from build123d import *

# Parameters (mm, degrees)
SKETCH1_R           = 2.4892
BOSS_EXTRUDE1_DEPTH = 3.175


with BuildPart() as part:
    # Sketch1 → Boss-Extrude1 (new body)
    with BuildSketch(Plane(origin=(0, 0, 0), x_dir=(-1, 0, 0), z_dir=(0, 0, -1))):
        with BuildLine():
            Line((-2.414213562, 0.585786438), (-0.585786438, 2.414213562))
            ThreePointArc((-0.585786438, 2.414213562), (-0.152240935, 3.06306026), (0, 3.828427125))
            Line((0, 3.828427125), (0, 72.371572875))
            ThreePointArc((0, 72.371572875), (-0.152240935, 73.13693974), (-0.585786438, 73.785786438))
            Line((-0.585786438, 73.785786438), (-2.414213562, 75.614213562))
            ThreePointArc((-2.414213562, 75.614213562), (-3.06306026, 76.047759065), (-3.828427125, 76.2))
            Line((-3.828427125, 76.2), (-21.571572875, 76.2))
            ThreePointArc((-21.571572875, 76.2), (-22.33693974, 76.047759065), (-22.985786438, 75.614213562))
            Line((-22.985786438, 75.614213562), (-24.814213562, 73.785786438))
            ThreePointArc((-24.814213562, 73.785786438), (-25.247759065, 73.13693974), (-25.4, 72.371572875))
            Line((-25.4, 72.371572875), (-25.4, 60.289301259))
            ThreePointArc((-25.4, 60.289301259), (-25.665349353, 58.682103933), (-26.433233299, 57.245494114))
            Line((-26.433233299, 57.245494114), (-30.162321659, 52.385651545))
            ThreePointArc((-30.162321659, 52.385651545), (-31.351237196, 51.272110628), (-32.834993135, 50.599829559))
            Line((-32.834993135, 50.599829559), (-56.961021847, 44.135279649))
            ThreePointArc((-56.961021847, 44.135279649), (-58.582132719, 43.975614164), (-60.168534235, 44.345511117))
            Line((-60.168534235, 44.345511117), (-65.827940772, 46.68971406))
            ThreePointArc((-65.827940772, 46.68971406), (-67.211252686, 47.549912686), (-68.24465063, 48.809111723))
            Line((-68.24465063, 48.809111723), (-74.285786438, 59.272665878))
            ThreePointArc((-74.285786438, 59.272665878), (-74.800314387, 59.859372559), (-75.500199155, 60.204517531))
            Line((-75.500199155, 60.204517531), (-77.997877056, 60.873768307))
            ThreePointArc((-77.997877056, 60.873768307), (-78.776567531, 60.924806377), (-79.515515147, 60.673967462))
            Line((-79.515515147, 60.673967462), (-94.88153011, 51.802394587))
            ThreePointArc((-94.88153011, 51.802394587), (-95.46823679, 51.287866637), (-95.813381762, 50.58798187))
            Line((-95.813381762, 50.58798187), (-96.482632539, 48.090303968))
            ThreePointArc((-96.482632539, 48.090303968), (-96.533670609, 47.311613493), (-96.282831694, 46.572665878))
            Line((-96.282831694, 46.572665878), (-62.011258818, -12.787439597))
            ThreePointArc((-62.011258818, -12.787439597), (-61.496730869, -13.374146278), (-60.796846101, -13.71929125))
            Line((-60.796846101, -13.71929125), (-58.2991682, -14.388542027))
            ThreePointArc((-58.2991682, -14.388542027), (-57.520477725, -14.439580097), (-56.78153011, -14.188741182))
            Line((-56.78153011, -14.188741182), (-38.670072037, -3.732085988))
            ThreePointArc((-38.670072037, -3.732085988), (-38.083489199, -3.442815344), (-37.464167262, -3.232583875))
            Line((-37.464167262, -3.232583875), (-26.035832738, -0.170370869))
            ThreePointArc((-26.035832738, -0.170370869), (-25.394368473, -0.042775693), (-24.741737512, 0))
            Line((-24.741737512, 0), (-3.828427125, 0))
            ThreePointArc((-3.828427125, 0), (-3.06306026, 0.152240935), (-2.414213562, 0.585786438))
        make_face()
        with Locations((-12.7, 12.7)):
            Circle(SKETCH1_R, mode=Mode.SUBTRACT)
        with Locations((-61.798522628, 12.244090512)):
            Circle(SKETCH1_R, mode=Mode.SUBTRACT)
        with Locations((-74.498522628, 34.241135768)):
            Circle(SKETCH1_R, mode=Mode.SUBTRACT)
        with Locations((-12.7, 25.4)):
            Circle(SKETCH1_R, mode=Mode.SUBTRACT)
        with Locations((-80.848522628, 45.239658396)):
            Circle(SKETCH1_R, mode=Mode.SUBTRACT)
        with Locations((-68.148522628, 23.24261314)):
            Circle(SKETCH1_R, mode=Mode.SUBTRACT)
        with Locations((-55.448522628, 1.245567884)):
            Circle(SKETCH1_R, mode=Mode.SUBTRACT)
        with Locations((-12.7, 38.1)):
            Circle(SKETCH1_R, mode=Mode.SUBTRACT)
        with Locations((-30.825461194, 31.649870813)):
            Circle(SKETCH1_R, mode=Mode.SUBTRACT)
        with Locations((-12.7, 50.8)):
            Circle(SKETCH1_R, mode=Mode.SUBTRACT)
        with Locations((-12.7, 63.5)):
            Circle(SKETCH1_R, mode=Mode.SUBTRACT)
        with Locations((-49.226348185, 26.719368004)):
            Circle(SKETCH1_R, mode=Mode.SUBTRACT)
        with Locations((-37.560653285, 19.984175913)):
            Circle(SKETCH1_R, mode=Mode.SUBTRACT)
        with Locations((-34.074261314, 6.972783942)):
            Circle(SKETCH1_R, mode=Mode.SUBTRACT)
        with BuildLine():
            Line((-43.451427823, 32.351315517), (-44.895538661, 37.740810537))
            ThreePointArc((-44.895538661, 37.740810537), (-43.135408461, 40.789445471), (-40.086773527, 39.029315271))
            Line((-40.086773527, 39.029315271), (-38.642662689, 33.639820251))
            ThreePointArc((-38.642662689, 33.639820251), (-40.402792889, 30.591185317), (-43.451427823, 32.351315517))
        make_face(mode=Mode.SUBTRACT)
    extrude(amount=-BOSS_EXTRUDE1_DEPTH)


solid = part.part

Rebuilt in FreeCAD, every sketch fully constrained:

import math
import FreeCAD as App
import Part
import Sketcher

V = App.Vector
Q = App.Units.Quantity

doc = App.newDocument("Part")
params = doc.addObject("Spreadsheet::Sheet", "Params")
for row, (alias, value) in enumerate([
    ("sketch1_radius", "2 mm"),
    ("sketch1_radius2", "5 mm"),
    ("pad1_length", "3.175 mm"),
], start=1):
    params.set(f"A{row}", alias)
    params.set(f"B{row}", "=" + value)
    params.setAlias(f"B{row}", alias)

body = doc.addObject("PartDesign::Body", "Body")

sketch1 = body.newObject("Sketcher::SketchObject", "Sketch")
sketch1.AttachmentSupport = (doc.getObject("XY_Plane"), [""])
sketch1.MapMode = "FlatFace"
sketch1.addGeometry([
    Part.LineSegment(V(2.414214, 0.585786, 0), V(0.585786, 2.414214, 0)),
    Part.ArcOfCircle(Part.Circle(V(2, 3.828427, 0), V(0, 0, 1), 2), math.radians(180), math.radians(225)),
    Part.LineSegment(V(0, 3.828427, 0), V(0, 72.371573, 0)),
    Part.ArcOfCircle(Part.Circle(V(2, 72.371573, 0), V(0, 0, 1), 2), math.radians(135), math.radians(180)),
    Part.LineSegment(V(0.585786, 73.785786, 0), V(2.414214, 75.614214, 0)),
    Part.ArcOfCircle(Part.Circle(V(3.828427, 74.2, 0), V(0, 0, 1), 2), math.radians(90), math.radians(135)),
    Part.LineSegment(V(3.828427, 76.2, 0), V(21.571573, 76.2, 0)),
    Part.ArcOfCircle(Part.Circle(V(21.571573, 74.2, 0), V(0, 0, 1), 2), math.radians(45), math.radians(90)),
    Part.LineSegment(V(22.985786, 75.614214, 0), V(24.814214, 73.785786, 0)),
    Part.ArcOfCircle(Part.Circle(V(23.4, 72.371573, 0), V(0, 0, 1), 2), math.radians(0), math.radians(45)),
    Part.LineSegment(V(25.4, 72.371573, 0), V(25.4, 60.289301, 0)),
    Part.ArcOfCircle(Part.Circle(V(30.4, 60.289301, 0), V(0, 0, 1), 5), math.radians(-180), math.radians(-142.5)),
    Part.LineSegment(V(26.433233, 57.245494, 0), V(30.162322, 52.385652, 0)),
    Part.ArcOfCircle(Part.Circle(V(34.129088, 55.429459, 0), V(0, 0, 1), 5), math.radians(-142.5), math.radians(-105)),
    Part.LineSegment(V(32.834993, 50.59983, 0), V(56.961022, 44.13528, 0)),
    Part.ArcOfCircle(Part.Circle(V(58.255117, 48.964909, 0), V(0, 0, 1), 5), math.radians(-105), math.radians(-67.5)),
    Part.LineSegment(V(60.168534, 44.345511, 0), V(65.827941, 46.689714, 0)),
    Part.ArcOfCircle(Part.Circle(V(63.914524, 51.309112, 0), V(0, 0, 1), 5), math.radians(-67.5), math.radians(-30)),
    Part.LineSegment(V(68.244651, 48.809112, 0), V(74.285786, 59.272666, 0)),
    Part.ArcOfCircle(Part.Circle(V(76.017837, 58.272666, 0), V(0, 0, 1), 2), math.radians(105), math.radians(150)),
    Part.LineSegment(V(75.500199, 60.204518, 0), V(77.997877, 60.873768, 0)),
    Part.ArcOfCircle(Part.Circle(V(78.515515, 58.941917, 0), V(0, 0, 1), 2), math.radians(60), math.radians(105)),
    Part.LineSegment(V(79.515515, 60.673967, 0), V(94.88153, 51.802395, 0)),
    Part.ArcOfCircle(Part.Circle(V(93.88153, 50.070344, 0), V(0, 0, 1), 2), math.radians(15), math.radians(60)),
    Part.LineSegment(V(95.813382, 50.587982, 0), V(96.482633, 48.090304, 0)),
    Part.ArcOfCircle(Part.Circle(V(94.550781, 47.572666, 0), V(0, 0, 1), 2), math.radians(-30), math.radians(15)),
    Part.LineSegment(V(96.282832, 46.572666, 0), V(62.011259, -12.78744, 0)),
    Part.ArcOfCircle(Part.Circle(V(60.279208, -11.78744, 0), V(0, 0, 1), 2), math.radians(-75), math.radians(-30)),
    Part.LineSegment(V(60.796846, -13.719291, 0), V(58.299168, -14.388542, 0)),
    Part.ArcOfCircle(Part.Circle(V(57.78153, -12.45669, 0), V(0, 0, 1), 2), math.radians(-120), math.radians(-75)),
    Part.LineSegment(V(56.78153, -14.188741, 0), V(38.670072, -3.732086, 0)),
    Part.ArcOfCircle(Part.Circle(V(36.170072, -8.062213, 0), V(0, 0, 1), 5), math.radians(60), math.radians(75)),
    Part.LineSegment(V(37.464167, -3.232584, 0), V(26.035833, -0.170371, 0)),
    Part.ArcOfCircle(Part.Circle(V(24.741738, -5, 0), V(0, 0, 1), 5), math.radians(75), math.radians(90)),
    Part.LineSegment(V(24.741738, 0, 0), V(3.828427, 0, 0)),
    Part.ArcOfCircle(Part.Circle(V(3.828427, 2, 0), V(0, 0, 1), 2), math.radians(-135), math.radians(-90)),
    Part.Circle(V(55.448523, 1.245568, 0), V(0, 0, 1), 2.4892),
    Part.Circle(V(61.798523, 12.244091, 0), V(0, 0, 1), 2.4892),
    Part.Circle(V(68.148523, 23.242613, 0), V(0, 0, 1), 2.4892),
    Part.Circle(V(49.226348, 26.719368, 0), V(0, 0, 1), 2.4892),
    Part.Circle(V(34.074261, 6.972784, 0), V(0, 0, 1), 2.4892),
    Part.Circle(V(12.7, 12.7, 0), V(0, 0, 1), 2.4892),
    Part.Circle(V(37.560653, 19.984176, 0), V(0, 0, 1), 2.4892),
    Part.Circle(V(30.825461, 31.649871, 0), V(0, 0, 1), 2.4892),
    Part.Circle(V(12.7, 25.4, 0), V(0, 0, 1), 2.4892),
    Part.Circle(V(74.498523, 34.241136, 0), V(0, 0, 1), 2.4892),
    Part.Circle(V(80.848523, 45.239658, 0), V(0, 0, 1), 2.4892),
    Part.ArcOfCircle(Part.Circle(V(41.047045, 32.995568, 0), V(0, 0, 1), 2.4892), math.radians(165), math.radians(345)),
    Part.LineSegment(V(43.451428, 32.351316, 0), V(44.895539, 37.740811, 0)),
    Part.ArcOfCircle(Part.Circle(V(42.491156, 38.385063, 0), V(0, 0, 1), 2.4892), math.radians(-15), math.radians(165)),
    Part.LineSegment(V(40.086774, 39.029315, 0), V(38.642663, 33.63982, 0)),
    Part.Circle(V(12.7, 38.1, 0), V(0, 0, 1), 2.4892),
    Part.Circle(V(12.7, 50.8, 0), V(0, 0, 1), 2.4892),
    Part.Circle(V(12.7, 63.5, 0), V(0, 0, 1), 2.4892),
], False)
sketch1.addConstraint([
    Sketcher.Constraint("Tangent", 0, 2, 1, 2),
    Sketcher.Constraint("Tangent", 1, 1, 2, 1),
    Sketcher.Constraint("Tangent", 2, 2, 3, 2),
    Sketcher.Constraint("Tangent", 3, 1, 4, 1),
    Sketcher.Constraint("Tangent", 4, 2, 5, 2),
    Sketcher.Constraint("Tangent", 5, 1, 6, 1),
    Sketcher.Constraint("Tangent", 6, 2, 7, 2),
    Sketcher.Constraint("Tangent", 7, 1, 8, 1),
    Sketcher.Constraint("Tangent", 8, 2, 9, 2),
    Sketcher.Constraint("Tangent", 9, 1, 10, 1),
    Sketcher.Constraint("Tangent", 10, 2, 11, 1),
    Sketcher.Constraint("Tangent", 11, 2, 12, 1),
    Sketcher.Constraint("Tangent", 12, 2, 13, 1),
    Sketcher.Constraint("Tangent", 13, 2, 14, 1),
    Sketcher.Constraint("Tangent", 14, 2, 15, 1),
    Sketcher.Constraint("Tangent", 15, 2, 16, 1),
    Sketcher.Constraint("Tangent", 16, 2, 17, 1),
    Sketcher.Constraint("Tangent", 17, 2, 18, 1),
    Sketcher.Constraint("Tangent", 18, 2, 19, 2),
    Sketcher.Constraint("Tangent", 19, 1, 20, 1),
    Sketcher.Constraint("Tangent", 20, 2, 21, 2),
    Sketcher.Constraint("Tangent", 21, 1, 22, 1),
    Sketcher.Constraint("Tangent", 22, 2, 23, 2),
    Sketcher.Constraint("Tangent", 23, 1, 24, 1),
    Sketcher.Constraint("Tangent", 24, 2, 25, 2),
    Sketcher.Constraint("Tangent", 25, 1, 26, 1),
    Sketcher.Constraint("Tangent", 26, 2, 27, 2),
    Sketcher.Constraint("Tangent", 27, 1, 28, 1),
    Sketcher.Constraint("Tangent", 28, 2, 29, 2),
    Sketcher.Constraint("Tangent", 29, 1, 30, 1),
    Sketcher.Constraint("Tangent", 30, 2, 31, 1),
    Sketcher.Constraint("Tangent", 31, 2, 32, 1),
    Sketcher.Constraint("Tangent", 32, 2, 33, 1),
    Sketcher.Constraint("Tangent", 33, 2, 34, 1),
    Sketcher.Constraint("Tangent", 34, 2, 35, 2),
    Sketcher.Constraint("Tangent", 35, 1, 0, 1),
    Sketcher.Constraint("Tangent", 47, 2, 48, 1),
    Sketcher.Constraint("Tangent", 48, 2, 49, 1),
    Sketcher.Constraint("Tangent", 49, 2, 50, 1),
    Sketcher.Constraint("Tangent", 50, 2, 47, 1),
    Sketcher.Constraint("Vertical", 2),
    Sketcher.Constraint("Horizontal", 6),
    Sketcher.Constraint("Vertical", 10),
    Sketcher.Constraint("Horizontal", 34),
    Sketcher.Constraint("Equal", 1, 3),
    Sketcher.Constraint("Equal", 3, 5),
    Sketcher.Constraint("Equal", 5, 7),
    Sketcher.Constraint("Equal", 7, 9),
    Sketcher.Constraint("Equal", 11, 13),
    Sketcher.Constraint("Equal", 13, 15),
    Sketcher.Constraint("Equal", 15, 17),
    Sketcher.Constraint("Equal", 9, 19),
    Sketcher.Constraint("Equal", 19, 21),
    Sketcher.Constraint("Equal", 21, 23),
    Sketcher.Constraint("Equal", 23, 25),
    Sketcher.Constraint("Equal", 25, 27),
    Sketcher.Constraint("Equal", 27, 29),
    Sketcher.Constraint("Equal", 17, 31),
    Sketcher.Constraint("Equal", 31, 33),
    Sketcher.Constraint("Equal", 29, 35),
    Sketcher.Constraint("Equal", 36, 37),
    Sketcher.Constraint("Equal", 37, 38),
    Sketcher.Constraint("Equal", 38, 39),
    Sketcher.Constraint("Equal", 39, 40),
    Sketcher.Constraint("Equal", 40, 41),
    Sketcher.Constraint("Equal", 41, 42),
    Sketcher.Constraint("Equal", 42, 43),
    Sketcher.Constraint("Equal", 43, 44),
    Sketcher.Constraint("Equal", 44, 45),
    Sketcher.Constraint("Equal", 45, 46),
    Sketcher.Constraint("Equal", 46, 47),
    Sketcher.Constraint("Equal", 47, 49),
    Sketcher.Constraint("Equal", 49, 51),
    Sketcher.Constraint("Equal", 51, 52),
    Sketcher.Constraint("Equal", 52, 53),
    Sketcher.Constraint("PointOnObject", 1, 1, -2),
    Sketcher.Constraint("PointOnObject", 33, 2, -1),
    Sketcher.Constraint("Perpendicular", 0, 4),
    Sketcher.Constraint("Perpendicular", 4, 8),
    Sketcher.Constraint("Perpendicular", 18, 22),
    Sketcher.Constraint("Perpendicular", 20, 24),
    Sketcher.Constraint("Perpendicular", 22, 26),
    Sketcher.Constraint("Perpendicular", 24, 28),
    Sketcher.Constraint("Perpendicular", 26, 30),
    Sketcher.Constraint("Parallel", 14, 32),
    Sketcher.Constraint("Perpendicular", 32, 48),
    Sketcher.Constraint("Horizontal", 3, 3, 9, 3),
    Sketcher.Constraint("Horizontal", 4, 2, 7, 1),
    Sketcher.Constraint("Vertical", 5, 3, 35, 3),
    Sketcher.Constraint("Vertical", 41, 3, 44, 3),
    Sketcher.Constraint("Vertical", 44, 3, 51, 3),
    Sketcher.Constraint("Vertical", 51, 3, 52, 3),
    Sketcher.Constraint("Vertical", 52, 3, 53, 3),
    Sketcher.Constraint("Equal", 12, 16),
    Sketcher.Constraint("Equal", 8, 20),
    Sketcher.Constraint("Equal", 20, 24),
    Sketcher.Constraint("Equal", 24, 28),
    Sketcher.Constraint("Radius", 1, 2.0),
    Sketcher.Constraint("Radius", 11, 5.0),
    Sketcher.Constraint("Angle", 14, Q("-15 deg")),
    Sketcher.Constraint("Angle", 18, Q("60 deg")),
    Sketcher.Constraint("Angle", 20, Q("15 deg")),
    Sketcher.Constraint("Angle", 12, Q("-52.5 deg")),
    Sketcher.Constraint("Angle", 16, Q("22.5 deg")),
    Sketcher.Constraint("Diameter", 36, 4.9784),
    Sketcher.Constraint("DistanceY", -1, 1, 5, 3, 74.2),
    Sketcher.Constraint("DistanceX", -1, 1, 9, 3, 23.4),
    Sketcher.Constraint("DistanceX", -1, 1, 41, 3, 12.7),
    Sketcher.Constraint("DistanceY", -1, 1, 41, 3, 12.7),
    Sketcher.Constraint("DistanceY", -1, 1, 44, 3, 25.4),
    Sketcher.Constraint("DistanceY", -1, 1, 51, 3, 38.1),
    Sketcher.Constraint("DistanceY", -1, 1, 52, 3, 50.8),
    Sketcher.Constraint("DistanceY", -1, 1, 53, 3, 63.5),
    Sketcher.Constraint("DistanceX", 34, 2, 34, 1, 20.91331),
    Sketcher.Constraint("DistanceY", 10, 2, 10, 1, 12.082272),
    Sketcher.Constraint("DistanceY", -1, 1, 11, 3, 60.289301),
    Sketcher.Constraint("DistanceX", -1, 1, 19, 1, 75.500199),
    Sketcher.Constraint("Distance", 18, 12.082272),
    Sketcher.Constraint("Distance", 30, 20.91331),
    Sketcher.Constraint("DistanceX", -1, 1, 13, 3, 34.129088),
    Sketcher.Constraint("DistanceX", -1, 1, 23, 3, 93.88153),
    Sketcher.Constraint("DistanceY", -1, 1, 37, 3, 12.244091),
    Sketcher.Constraint("DistanceX", -1, 1, 39, 3, 49.226348),
    Sketcher.Constraint("DistanceY", -1, 1, 39, 3, 26.719368),
    Sketcher.Constraint("DistanceX", -1, 1, 40, 3, 34.074261),
    Sketcher.Constraint("DistanceX", -1, 1, 43, 3, 30.825461),
    Sketcher.Constraint("DistanceY", -1, 1, 43, 3, 31.649871),
    Sketcher.Constraint("DistanceY", -1, 1, 46, 3, 45.239658),
    Sketcher.Constraint("DistanceX", -1, 1, 48, 2, 44.895539),
    Sketcher.Constraint("DistanceY", -1, 1, 48, 2, 37.740811),
    Sketcher.Constraint("DistanceY", -1, 1, 50, 2, 33.63982),
    Sketcher.Constraint("DistanceX", -1, 1, 36, 3, 55.448523),
    Sketcher.Constraint("DistanceY", -1, 1, 36, 3, 1.245568),
    Sketcher.Constraint("DistanceX", -1, 1, 37, 3, 61.798523),
    Sketcher.Constraint("DistanceX", -1, 1, 38, 3, 68.148523),
    Sketcher.Constraint("DistanceY", -1, 1, 38, 3, 23.242613),
    Sketcher.Constraint("DistanceY", -1, 1, 40, 3, 6.972784),
    Sketcher.Constraint("DistanceX", -1, 1, 42, 3, 37.560653),
    Sketcher.Constraint("DistanceY", -1, 1, 42, 3, 19.984176),
    Sketcher.Constraint("DistanceX", -1, 1, 45, 3, 74.498523),
    Sketcher.Constraint("DistanceY", -1, 1, 45, 3, 34.241136),
    Sketcher.Constraint("DistanceX", -1, 1, 46, 3, 80.848523),
])
sketch1.setExpression("Constraints[97]", "Params.sketch1_radius")
sketch1.setExpression("Constraints[98]", "Params.sketch1_radius2")
pad1 = body.newObject("PartDesign::Pad", "Pad")
pad1.Profile = sketch1
pad1.setExpression("Length", "Params.pad1_length")

doc.recompute()
